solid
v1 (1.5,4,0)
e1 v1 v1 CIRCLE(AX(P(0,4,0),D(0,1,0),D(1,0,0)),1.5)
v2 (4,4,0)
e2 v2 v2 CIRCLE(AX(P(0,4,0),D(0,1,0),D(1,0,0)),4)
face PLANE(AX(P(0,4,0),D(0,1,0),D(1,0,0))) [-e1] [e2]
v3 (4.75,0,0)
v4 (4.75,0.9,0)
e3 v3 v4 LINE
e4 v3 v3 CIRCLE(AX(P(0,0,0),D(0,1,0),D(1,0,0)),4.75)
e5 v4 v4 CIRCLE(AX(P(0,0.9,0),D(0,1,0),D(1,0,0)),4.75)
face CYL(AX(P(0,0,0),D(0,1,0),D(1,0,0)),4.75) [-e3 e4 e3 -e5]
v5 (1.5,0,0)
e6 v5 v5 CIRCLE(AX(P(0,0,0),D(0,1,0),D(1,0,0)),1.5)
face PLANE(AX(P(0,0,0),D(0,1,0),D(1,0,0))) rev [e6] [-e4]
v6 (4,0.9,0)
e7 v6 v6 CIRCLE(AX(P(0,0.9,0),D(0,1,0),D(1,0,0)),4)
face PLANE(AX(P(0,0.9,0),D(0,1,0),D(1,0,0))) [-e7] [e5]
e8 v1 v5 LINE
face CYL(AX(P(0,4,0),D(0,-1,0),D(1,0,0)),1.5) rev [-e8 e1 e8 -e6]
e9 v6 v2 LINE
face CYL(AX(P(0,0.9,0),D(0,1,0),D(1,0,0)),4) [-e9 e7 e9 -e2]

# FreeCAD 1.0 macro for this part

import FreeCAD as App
import Part
import Sketcher


def add_polygon(sketch, points):
    """Adds a closed chain of lines whose ends are joined by coincident constraints."""
    first, n = sketch.GeometryCount, len(points)
    for a, b in zip(points, points[1:] + points[:1]):
        sketch.addGeometry(Part.LineSegment(App.Vector(*a, 0), App.Vector(*b, 0)), False)
    for i in range(n):
        sketch.addConstraint(Sketcher.Constraint("Coincident", first + i, 2, first + (i + 1) % n, 1))

doc = App.newDocument("Part")
body = doc.addObject("PartDesign::Body", "Body")

# Sketch on XY plane
sketch1 = doc.addObject("Sketcher::SketchObject", "Sketch")
body.addObject(sketch1)
sketch1.AttachmentSupport = (doc.XY_Plane, [""])
sketch1.MapMode = "FlatFace"
add_polygon(sketch1, [(1.5, 0), (4.75, 0), (4.75, 0.9), (4, 0.9), (4, 4), (1.5, 4)])  # lines 0-5
sketch1.addConstraint(Sketcher.Constraint("Horizontal", 0))
sketch1.addConstraint(Sketcher.Constraint("Vertical", 1))
sketch1.addConstraint(Sketcher.Constraint("Horizontal", 2))
sketch1.addConstraint(Sketcher.Constraint("Vertical", 3))
sketch1.addConstraint(Sketcher.Constraint("Horizontal", 4))
sketch1.addConstraint(Sketcher.Constraint("Vertical", 5))
sketch1.addConstraint(Sketcher.Constraint("PointOnObject", 0, 2, -1))
sketch1.addConstraint(Sketcher.Constraint("DistanceY", 5, 2, 5, 1, 4.0))
sketch1.addConstraint(Sketcher.Constraint("DistanceX", 4, 2, 4, 1, 2.5))
sketch1.addConstraint(Sketcher.Constraint("DistanceY", 1, 1, 1, 2, 0.9))
sketch1.addConstraint(Sketcher.Constraint("DistanceX", -1, 1, 2, 2, 4.0))
sketch1.addConstraint(Sketcher.Constraint("DistanceX", 0, 1, 0, 2, 3.25))
revolution = doc.addObject("PartDesign::Revolution", "Revolution")
body.addObject(revolution)
revolution.Profile = sketch1
revolution.ReferenceAxis = (sketch1, ["V_Axis"])
revolution.Angle = 360

doc.recompute()
